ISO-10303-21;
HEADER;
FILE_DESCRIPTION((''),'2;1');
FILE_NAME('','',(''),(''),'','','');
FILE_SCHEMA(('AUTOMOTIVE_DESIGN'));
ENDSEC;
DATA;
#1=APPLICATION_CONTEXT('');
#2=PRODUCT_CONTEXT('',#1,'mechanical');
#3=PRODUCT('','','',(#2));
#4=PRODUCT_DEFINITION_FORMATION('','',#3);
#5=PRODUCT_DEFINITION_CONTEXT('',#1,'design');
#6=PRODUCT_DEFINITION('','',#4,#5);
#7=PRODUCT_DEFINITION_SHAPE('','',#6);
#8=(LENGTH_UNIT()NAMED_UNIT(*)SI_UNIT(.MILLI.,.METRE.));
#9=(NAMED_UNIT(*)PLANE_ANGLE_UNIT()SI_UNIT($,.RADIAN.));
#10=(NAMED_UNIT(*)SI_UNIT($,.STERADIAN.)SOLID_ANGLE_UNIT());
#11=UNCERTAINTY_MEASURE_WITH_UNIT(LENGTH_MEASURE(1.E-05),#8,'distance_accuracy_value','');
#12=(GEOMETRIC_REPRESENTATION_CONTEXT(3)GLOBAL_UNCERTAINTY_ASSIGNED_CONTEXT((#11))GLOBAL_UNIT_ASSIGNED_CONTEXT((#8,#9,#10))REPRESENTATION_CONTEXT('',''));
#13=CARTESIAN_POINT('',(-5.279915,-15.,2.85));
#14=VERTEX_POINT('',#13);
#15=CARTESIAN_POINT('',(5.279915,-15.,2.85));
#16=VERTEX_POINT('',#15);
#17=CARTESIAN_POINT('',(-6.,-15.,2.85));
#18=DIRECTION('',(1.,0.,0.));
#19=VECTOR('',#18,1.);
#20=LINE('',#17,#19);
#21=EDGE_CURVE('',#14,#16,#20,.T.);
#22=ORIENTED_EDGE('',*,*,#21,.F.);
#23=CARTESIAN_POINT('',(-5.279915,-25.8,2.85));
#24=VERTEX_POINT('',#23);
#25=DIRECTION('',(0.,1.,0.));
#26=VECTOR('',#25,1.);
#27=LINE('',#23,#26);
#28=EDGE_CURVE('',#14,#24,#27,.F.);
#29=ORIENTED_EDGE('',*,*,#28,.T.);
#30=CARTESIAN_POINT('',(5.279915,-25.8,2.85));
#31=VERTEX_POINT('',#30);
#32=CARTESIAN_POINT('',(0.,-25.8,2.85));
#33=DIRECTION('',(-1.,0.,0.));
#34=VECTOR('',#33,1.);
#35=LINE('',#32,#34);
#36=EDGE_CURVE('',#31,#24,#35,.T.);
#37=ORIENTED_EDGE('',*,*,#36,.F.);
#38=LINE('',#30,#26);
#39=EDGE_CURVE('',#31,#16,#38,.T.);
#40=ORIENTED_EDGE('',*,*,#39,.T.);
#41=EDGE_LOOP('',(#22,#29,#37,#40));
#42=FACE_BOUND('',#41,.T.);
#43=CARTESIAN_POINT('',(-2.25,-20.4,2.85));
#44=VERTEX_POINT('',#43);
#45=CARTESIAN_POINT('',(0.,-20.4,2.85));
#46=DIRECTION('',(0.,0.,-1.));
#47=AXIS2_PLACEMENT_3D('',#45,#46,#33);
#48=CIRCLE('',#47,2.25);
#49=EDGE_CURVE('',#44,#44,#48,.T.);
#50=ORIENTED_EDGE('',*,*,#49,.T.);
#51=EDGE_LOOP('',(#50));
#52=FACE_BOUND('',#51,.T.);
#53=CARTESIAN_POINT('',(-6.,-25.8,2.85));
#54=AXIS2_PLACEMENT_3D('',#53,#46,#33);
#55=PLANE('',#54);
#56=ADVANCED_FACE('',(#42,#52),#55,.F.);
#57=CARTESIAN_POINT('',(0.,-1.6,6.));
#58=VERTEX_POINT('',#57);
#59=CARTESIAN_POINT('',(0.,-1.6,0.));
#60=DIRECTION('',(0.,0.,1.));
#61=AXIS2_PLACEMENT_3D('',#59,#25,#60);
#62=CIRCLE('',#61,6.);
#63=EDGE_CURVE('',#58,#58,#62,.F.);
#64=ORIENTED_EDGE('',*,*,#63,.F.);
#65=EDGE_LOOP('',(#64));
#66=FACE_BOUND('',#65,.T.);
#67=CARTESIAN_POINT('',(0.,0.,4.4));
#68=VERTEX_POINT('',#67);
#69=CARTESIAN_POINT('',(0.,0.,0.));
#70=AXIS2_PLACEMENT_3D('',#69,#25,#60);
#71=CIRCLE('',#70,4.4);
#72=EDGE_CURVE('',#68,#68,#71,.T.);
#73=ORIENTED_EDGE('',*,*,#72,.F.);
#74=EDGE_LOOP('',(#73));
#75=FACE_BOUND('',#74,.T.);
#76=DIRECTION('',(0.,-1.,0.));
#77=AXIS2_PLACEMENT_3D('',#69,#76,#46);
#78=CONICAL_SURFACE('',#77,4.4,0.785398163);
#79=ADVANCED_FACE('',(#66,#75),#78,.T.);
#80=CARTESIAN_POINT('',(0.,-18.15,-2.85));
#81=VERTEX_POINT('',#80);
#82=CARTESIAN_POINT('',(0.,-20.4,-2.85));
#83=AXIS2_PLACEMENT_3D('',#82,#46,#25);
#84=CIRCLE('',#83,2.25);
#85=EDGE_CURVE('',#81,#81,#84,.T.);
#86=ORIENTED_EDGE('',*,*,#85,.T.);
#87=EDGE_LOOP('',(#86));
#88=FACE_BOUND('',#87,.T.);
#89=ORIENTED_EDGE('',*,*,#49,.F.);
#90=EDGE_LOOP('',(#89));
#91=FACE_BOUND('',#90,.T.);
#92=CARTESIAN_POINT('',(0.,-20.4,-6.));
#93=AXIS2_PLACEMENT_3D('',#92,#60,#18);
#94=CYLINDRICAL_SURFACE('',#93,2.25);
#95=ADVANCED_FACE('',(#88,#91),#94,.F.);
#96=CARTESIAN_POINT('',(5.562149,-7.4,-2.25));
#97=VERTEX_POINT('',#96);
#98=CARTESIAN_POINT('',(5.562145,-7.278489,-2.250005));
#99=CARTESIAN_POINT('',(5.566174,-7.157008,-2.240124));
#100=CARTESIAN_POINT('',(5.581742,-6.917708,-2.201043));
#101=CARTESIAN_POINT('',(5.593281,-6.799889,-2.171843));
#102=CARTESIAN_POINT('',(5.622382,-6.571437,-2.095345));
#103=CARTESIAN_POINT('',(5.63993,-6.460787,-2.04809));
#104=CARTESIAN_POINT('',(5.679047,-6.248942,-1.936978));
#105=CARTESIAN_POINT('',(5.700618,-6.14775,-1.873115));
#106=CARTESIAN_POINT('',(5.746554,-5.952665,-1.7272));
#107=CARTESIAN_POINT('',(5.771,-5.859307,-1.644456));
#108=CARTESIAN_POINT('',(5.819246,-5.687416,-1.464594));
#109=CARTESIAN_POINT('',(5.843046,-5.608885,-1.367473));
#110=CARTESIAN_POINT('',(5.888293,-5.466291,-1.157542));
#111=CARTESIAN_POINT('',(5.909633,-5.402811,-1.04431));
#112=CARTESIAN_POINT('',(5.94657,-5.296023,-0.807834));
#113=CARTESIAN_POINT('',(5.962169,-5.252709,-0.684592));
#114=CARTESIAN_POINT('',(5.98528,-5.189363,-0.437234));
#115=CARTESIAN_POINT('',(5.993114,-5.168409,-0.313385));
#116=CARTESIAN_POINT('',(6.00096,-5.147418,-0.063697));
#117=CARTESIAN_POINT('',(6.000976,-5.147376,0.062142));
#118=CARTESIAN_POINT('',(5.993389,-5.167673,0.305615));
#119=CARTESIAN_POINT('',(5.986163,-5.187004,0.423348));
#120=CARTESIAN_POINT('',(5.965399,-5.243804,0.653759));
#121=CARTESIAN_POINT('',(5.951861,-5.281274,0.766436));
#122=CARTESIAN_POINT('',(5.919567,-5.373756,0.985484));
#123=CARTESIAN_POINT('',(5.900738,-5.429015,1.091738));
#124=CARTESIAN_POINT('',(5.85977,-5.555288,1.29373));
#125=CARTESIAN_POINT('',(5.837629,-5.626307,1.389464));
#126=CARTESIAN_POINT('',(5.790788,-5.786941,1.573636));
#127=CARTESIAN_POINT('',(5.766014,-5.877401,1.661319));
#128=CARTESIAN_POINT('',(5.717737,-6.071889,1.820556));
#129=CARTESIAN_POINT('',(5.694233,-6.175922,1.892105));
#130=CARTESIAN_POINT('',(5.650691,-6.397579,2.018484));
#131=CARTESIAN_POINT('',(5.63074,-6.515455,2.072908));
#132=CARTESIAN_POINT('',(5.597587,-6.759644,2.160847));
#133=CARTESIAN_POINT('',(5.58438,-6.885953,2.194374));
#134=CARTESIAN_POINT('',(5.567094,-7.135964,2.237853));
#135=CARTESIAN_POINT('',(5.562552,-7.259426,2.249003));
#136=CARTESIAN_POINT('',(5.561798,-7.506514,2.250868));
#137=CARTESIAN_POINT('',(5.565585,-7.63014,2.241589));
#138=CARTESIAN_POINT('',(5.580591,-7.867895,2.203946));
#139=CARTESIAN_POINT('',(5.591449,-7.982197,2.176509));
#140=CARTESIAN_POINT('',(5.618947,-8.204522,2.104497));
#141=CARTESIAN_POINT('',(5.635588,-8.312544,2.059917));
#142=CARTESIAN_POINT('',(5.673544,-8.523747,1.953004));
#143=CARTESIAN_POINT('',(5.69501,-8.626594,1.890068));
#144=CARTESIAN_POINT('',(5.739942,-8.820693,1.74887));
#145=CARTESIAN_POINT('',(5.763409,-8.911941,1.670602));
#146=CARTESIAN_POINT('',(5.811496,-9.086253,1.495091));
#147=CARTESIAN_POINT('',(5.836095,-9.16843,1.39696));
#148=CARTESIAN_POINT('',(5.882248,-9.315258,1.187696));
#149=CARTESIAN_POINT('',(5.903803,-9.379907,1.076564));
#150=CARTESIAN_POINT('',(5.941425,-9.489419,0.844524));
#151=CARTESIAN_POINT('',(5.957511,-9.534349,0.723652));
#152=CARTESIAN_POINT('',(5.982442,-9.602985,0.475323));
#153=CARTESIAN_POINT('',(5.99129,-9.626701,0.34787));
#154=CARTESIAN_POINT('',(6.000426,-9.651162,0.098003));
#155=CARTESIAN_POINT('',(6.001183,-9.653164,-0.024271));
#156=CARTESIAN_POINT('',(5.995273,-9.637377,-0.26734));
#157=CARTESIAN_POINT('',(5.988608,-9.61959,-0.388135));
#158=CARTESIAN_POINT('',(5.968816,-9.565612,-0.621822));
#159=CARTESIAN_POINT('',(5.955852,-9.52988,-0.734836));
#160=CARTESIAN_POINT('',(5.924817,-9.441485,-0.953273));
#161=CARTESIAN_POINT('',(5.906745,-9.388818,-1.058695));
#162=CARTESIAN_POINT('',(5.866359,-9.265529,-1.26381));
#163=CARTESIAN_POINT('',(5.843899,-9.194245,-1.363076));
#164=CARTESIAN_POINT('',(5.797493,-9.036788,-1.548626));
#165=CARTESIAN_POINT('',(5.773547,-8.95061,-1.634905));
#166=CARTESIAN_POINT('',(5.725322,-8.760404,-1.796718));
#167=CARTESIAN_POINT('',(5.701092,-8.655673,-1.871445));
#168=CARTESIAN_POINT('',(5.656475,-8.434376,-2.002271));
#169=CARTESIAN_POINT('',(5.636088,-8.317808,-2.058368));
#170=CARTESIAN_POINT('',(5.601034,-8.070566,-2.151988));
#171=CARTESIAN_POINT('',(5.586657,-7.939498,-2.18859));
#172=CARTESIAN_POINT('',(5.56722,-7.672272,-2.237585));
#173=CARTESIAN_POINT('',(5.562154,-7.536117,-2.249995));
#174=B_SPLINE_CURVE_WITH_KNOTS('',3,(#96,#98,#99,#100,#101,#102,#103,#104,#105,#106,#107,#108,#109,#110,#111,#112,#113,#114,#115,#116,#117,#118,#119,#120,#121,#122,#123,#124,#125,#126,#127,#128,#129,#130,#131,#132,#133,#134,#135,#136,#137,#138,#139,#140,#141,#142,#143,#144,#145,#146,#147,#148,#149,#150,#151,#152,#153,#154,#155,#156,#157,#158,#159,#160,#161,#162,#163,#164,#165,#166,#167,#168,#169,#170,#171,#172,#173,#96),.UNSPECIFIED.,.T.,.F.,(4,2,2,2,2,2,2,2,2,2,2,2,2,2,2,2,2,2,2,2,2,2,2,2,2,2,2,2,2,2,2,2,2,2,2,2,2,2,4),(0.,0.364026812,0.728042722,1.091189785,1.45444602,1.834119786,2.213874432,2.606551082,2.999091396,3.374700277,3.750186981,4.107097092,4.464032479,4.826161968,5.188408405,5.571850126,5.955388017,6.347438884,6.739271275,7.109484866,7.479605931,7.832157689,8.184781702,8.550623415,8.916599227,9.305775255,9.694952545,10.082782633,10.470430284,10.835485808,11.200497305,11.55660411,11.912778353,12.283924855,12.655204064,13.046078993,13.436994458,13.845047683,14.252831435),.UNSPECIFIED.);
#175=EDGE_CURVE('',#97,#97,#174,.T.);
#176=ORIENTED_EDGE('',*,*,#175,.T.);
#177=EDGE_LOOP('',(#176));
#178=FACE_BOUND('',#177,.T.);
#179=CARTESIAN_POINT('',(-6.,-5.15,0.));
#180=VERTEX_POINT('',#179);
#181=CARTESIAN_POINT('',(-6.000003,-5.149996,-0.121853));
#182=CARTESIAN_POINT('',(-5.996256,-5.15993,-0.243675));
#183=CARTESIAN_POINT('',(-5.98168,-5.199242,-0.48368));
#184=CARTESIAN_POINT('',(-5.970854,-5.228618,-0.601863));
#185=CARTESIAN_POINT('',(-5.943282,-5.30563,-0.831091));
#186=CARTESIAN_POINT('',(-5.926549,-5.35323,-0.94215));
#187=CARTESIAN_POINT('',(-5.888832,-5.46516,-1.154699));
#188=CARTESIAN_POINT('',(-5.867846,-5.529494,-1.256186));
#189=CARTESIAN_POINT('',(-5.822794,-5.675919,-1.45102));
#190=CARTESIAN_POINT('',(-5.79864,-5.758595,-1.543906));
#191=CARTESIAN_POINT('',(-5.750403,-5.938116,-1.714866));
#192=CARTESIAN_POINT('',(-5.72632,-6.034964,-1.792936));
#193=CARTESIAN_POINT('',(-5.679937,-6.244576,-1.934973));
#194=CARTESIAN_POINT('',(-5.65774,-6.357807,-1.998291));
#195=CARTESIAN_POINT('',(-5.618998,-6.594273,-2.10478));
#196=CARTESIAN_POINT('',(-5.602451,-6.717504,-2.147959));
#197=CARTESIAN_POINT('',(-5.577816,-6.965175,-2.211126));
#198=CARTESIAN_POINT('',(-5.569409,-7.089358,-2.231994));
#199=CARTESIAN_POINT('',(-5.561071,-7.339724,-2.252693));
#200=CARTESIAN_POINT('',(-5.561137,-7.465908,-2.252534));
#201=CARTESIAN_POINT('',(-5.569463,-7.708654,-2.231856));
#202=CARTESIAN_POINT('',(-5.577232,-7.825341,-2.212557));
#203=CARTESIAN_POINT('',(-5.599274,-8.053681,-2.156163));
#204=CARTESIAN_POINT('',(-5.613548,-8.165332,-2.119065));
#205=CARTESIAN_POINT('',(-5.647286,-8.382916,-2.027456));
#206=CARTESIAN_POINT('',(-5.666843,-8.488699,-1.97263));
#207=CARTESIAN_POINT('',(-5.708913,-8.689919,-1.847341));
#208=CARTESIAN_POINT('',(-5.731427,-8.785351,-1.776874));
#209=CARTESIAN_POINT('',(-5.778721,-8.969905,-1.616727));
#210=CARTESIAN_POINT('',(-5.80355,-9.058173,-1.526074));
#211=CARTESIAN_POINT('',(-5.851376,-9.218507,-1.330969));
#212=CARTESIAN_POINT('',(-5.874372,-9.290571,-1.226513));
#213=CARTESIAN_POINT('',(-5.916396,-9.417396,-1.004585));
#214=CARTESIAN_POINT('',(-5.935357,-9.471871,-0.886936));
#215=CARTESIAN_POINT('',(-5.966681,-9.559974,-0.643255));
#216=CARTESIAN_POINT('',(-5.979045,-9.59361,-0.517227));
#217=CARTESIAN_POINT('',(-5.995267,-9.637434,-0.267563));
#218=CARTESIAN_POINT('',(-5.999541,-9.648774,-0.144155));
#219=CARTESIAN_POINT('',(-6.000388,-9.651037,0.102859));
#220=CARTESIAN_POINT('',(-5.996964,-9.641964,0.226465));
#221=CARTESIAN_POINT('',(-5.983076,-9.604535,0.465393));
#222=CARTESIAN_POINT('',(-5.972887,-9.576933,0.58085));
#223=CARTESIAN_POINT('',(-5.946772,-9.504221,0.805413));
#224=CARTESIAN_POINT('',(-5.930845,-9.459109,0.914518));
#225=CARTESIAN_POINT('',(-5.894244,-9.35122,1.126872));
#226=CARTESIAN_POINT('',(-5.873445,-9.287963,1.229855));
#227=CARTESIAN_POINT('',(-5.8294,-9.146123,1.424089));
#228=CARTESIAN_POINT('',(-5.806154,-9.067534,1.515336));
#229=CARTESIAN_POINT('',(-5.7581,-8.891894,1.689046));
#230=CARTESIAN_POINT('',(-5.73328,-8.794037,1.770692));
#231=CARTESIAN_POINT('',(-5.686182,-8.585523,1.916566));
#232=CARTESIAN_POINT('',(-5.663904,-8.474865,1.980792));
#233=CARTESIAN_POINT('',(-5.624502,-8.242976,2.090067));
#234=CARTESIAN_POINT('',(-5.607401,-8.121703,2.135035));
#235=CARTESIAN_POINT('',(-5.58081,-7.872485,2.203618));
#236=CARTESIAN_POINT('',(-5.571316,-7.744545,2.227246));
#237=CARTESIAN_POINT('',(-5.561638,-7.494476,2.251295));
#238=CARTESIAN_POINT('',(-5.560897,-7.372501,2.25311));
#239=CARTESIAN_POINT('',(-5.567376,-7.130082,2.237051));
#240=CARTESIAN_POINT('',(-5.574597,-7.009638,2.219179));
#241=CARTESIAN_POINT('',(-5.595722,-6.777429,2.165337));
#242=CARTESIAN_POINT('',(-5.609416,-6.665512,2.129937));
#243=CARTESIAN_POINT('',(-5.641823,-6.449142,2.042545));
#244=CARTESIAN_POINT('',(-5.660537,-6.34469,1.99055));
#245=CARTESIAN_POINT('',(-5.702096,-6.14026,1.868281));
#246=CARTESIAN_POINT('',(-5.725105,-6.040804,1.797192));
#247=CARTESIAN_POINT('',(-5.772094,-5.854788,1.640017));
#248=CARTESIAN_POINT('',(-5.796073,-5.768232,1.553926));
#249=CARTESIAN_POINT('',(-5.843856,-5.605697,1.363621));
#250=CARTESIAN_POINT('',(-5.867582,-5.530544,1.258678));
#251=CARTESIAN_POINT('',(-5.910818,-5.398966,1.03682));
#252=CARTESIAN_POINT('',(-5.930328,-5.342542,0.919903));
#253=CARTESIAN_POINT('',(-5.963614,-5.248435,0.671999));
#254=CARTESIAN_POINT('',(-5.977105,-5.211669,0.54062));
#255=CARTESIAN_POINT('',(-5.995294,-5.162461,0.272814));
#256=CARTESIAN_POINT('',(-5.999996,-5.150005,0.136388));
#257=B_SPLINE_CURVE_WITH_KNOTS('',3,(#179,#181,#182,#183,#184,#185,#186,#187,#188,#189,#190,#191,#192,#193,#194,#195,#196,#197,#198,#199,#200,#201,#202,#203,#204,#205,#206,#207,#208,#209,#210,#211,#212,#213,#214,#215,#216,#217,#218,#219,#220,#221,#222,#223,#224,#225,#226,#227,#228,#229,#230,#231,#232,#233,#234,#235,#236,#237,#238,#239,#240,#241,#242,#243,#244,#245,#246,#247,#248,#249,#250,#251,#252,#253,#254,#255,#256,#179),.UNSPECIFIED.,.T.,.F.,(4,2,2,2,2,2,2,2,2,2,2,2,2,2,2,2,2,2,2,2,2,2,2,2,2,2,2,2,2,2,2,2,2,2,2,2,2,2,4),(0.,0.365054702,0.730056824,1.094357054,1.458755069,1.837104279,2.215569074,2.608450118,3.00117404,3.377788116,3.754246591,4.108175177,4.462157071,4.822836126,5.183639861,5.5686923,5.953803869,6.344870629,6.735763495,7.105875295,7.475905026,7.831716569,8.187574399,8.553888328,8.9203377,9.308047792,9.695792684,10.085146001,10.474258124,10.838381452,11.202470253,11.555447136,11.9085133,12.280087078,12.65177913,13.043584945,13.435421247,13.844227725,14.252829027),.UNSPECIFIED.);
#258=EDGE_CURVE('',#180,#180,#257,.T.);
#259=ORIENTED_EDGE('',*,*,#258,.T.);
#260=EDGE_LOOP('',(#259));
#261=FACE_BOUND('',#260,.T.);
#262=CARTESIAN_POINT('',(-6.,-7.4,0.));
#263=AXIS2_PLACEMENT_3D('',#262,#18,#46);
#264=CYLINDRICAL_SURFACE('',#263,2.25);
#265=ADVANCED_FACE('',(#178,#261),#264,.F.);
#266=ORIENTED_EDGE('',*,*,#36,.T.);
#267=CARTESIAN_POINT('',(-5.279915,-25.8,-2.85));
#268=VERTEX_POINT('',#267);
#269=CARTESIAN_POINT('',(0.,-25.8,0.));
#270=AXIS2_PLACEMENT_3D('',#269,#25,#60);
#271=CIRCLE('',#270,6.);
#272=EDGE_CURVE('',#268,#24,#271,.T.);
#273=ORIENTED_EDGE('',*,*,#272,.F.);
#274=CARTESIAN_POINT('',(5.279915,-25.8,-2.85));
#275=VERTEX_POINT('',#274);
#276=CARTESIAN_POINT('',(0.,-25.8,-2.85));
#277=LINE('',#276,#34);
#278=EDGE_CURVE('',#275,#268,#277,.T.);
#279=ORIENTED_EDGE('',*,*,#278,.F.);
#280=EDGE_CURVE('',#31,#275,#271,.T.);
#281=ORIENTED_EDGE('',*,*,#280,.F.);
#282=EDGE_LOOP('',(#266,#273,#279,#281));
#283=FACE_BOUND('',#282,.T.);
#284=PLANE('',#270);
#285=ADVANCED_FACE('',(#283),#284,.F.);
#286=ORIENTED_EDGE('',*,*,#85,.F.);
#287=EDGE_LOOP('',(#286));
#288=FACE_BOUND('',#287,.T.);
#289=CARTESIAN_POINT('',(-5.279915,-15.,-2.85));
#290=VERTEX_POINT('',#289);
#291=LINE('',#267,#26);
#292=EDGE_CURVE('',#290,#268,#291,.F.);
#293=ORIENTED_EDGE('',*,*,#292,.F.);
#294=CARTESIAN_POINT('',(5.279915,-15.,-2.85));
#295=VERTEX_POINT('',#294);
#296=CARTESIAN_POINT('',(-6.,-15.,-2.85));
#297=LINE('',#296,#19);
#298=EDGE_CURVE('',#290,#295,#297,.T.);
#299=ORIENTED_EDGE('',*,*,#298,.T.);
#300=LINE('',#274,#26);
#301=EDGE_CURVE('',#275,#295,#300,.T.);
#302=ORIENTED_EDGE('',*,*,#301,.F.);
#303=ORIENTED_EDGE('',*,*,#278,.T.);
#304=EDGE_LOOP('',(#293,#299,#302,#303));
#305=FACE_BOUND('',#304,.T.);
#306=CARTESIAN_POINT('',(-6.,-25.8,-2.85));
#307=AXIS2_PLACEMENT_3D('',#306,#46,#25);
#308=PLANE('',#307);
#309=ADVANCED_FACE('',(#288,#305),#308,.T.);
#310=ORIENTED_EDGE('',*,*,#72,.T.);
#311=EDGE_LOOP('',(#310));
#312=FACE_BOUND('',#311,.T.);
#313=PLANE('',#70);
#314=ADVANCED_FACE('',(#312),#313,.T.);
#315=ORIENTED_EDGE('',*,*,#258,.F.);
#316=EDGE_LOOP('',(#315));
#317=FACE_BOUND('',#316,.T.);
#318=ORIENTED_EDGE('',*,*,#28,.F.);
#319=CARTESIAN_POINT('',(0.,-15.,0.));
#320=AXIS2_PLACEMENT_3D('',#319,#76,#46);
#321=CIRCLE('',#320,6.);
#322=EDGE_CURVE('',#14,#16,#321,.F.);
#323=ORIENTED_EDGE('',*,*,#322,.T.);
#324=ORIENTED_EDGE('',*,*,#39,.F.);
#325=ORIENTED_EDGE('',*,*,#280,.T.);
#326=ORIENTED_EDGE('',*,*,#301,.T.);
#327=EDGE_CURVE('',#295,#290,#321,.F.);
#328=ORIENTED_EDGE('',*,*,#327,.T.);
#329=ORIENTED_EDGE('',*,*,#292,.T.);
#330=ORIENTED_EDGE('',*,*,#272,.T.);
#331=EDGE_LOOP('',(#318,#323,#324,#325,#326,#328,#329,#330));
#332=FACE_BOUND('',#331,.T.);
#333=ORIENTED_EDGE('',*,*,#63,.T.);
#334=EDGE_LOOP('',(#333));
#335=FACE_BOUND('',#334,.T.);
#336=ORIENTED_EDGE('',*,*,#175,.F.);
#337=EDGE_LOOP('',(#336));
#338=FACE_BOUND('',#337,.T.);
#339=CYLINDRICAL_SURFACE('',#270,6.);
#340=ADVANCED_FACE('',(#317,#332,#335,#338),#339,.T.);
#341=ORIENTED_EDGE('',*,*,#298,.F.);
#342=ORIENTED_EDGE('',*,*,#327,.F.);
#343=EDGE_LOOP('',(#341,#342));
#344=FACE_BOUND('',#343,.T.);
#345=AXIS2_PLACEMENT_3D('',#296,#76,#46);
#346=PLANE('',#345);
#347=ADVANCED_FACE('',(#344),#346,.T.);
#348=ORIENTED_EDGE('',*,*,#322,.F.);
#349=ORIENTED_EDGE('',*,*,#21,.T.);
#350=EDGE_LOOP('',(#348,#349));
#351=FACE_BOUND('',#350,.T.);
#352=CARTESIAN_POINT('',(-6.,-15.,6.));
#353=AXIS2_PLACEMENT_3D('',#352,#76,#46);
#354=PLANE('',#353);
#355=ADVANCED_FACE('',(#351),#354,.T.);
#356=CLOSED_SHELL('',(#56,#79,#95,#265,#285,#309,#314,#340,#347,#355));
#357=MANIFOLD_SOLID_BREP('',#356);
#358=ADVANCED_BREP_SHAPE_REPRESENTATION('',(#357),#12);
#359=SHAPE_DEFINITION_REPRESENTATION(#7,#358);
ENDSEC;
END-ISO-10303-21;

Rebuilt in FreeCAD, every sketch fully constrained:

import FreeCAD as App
import Part
import Sketcher
from FreeCAD import Vector
Q = App.Units.Quantity


def edges_at(feature, points):
    """Names of the edges that pass closest to the given points."""
    edges = feature.Shape.Edges
    near = lambda p: min(range(len(edges)), key=lambda i: edges[i].distToShape(Part.Vertex(*p))[0])
    return sorted({f"Edge{near(p) + 1}" for p in points})

doc = App.newDocument("Part")
body = doc.addObject("PartDesign::Body", "Body")

# Sketch on XZ plane
sketch1 = doc.addObject("Sketcher::SketchObject", "Sketch")
body.addObject(sketch1)
sketch1.AttachmentSupport = (doc.XZ_Plane, [""])
sketch1.MapMode = "FlatFace"
sketch1.addGeometry(Part.Circle(Vector(0, 0, 0), Vector(0, 0, 1), 6), False)
sketch1.addConstraint([
    Sketcher.Constraint("Coincident", 0, 3, -1, 1),
    Sketcher.Constraint("Diameter", 0, Q("12 mm")),
])
pad1 = doc.addObject("PartDesign::Pad", "Pad")
body.addObject(pad1)
pad1.Profile = sketch1
pad1.Length = 25.8
doc.recompute()

chamfer = doc.addObject("PartDesign::Chamfer", "Chamfer")
body.addObject(chamfer)
chamfer.Base = (pad1, edges_at(pad1, [(-6, 0, 0)]))
chamfer.Size = 1.6

# Sketch on YZ plane
sketch2 = doc.addObject("Sketcher::SketchObject", "Sketch001")
body.addObject(sketch2)
sketch2.AttachmentSupport = (doc.YZ_Plane, [""])
sketch2.MapMode = "FlatFace"
sketch2.addGeometry([
    Part.LineSegment(Vector(-15, -2.9, 0), Vector(-25.8, -2.9, 0)),  # 0
    Part.LineSegment(Vector(-25.8, -2.9, 0), Vector(-25.8, -6, 0)),  # 1
    Part.LineSegment(Vector(-25.8, -6, 0), Vector(-15, -6, 0)),  # 2
    Part.LineSegment(Vector(-15, -6, 0), Vector(-15, -2.9, 0)),  # 3
    Part.LineSegment(Vector(-15, 6, 0), Vector(-25.8, 6, 0)),  # 4
    Part.LineSegment(Vector(-25.8, 6, 0), Vector(-25.8, 2.9, 0)),  # 5
    Part.LineSegment(Vector(-25.8, 2.9, 0), Vector(-15, 2.9, 0)),  # 6
    Part.LineSegment(Vector(-15, 2.9, 0), Vector(-15, 6, 0)),  # 7
], False)
sketch2.addConstraint([
    Sketcher.Constraint("Coincident", 0, 2, 1, 1),
    Sketcher.Constraint("Coincident", 1, 2, 2, 1),
    Sketcher.Constraint("Coincident", 2, 2, 3, 1),
    Sketcher.Constraint("Coincident", 3, 2, 0, 1),
    Sketcher.Constraint("Coincident", 4, 2, 5, 1),
    Sketcher.Constraint("Coincident", 5, 2, 6, 1),
    Sketcher.Constraint("Coincident", 6, 2, 7, 1),
    Sketcher.Constraint("Coincident", 7, 2, 4, 1),
    Sketcher.Constraint("Horizontal", 0),
    Sketcher.Constraint("Vertical", 1),
    Sketcher.Constraint("Horizontal", 2),
    Sketcher.Constraint("Vertical", 3),
    Sketcher.Constraint("Horizontal", 4),
    Sketcher.Constraint("Vertical", 5),
    Sketcher.Constraint("Horizontal", 6),
    Sketcher.Constraint("Vertical", 7),
    Sketcher.Constraint("Symmetric", 1, 2, 4, 2, -1),
    Sketcher.Constraint("Symmetric", 3, 2, 6, 2, -1),
    Sketcher.Constraint("DistanceX", 0, 2, 0, 1, Q("10.8 mm")),
    Sketcher.Constraint("DistanceY", 1, 2, -1, 1, Q("6 mm")),
    Sketcher.Constraint("DistanceX", 2, 2, -1, 1, Q("15 mm")),
    Sketcher.Constraint("DistanceY", 1, 2, 1, 1, Q("3.15 mm")),
])
pocket1 = doc.addObject("PartDesign::Pocket", "Pocket")
body.addObject(pocket1)
pocket1.Profile = sketch2
pocket1.Type = "ThroughAll"
pocket1.Midplane = True

# Sketch on XY plane
sketch3 = doc.addObject("Sketcher::SketchObject", "Sketch002")
body.addObject(sketch3)
sketch3.AttachmentSupport = (doc.XY_Plane, [""])
sketch3.MapMode = "FlatFace"
sketch3.AttachmentOffset = App.Placement(Vector(0, 0, 2.85), App.Rotation())
sketch3.addGeometry(Part.Circle(Vector(0, -20.4, 0), Vector(0, 0, 1), 2.2), False)
sketch3.addConstraint([
    Sketcher.Constraint("PointOnObject", 0, 3, -2),
    Sketcher.Constraint("Diameter", 0, Q("4.5 mm")),
    Sketcher.Constraint("DistanceY", 0, 3, -1, 1, Q("20.4 mm")),
])
pocket2 = doc.addObject("PartDesign::Pocket", "Pocket001")
body.addObject(pocket2)
pocket2.Profile = sketch3
pocket2.Type = "ThroughAll"
pocket2.Midplane = True

# Sketch on YZ plane
sketch4 = doc.addObject("Sketcher::SketchObject", "Sketch003")
body.addObject(sketch4)
sketch4.AttachmentSupport = (doc.YZ_Plane, [""])
sketch4.MapMode = "FlatFace"
sketch4.addGeometry(Part.Circle(Vector(-7.4, 0, 0), Vector(0, 0, 1), 2.2), False)
sketch4.addConstraint([
    Sketcher.Constraint("PointOnObject", 0, 3, -1),
    Sketcher.Constraint("Diameter", 0, Q("4.5 mm")),
    Sketcher.Constraint("DistanceX", 0, 3, -1, 1, Q("7.4 mm")),
])
pocket3 = doc.addObject("PartDesign::Pocket", "Pocket002")
body.addObject(pocket3)
pocket3.Profile = sketch4
pocket3.Type = "ThroughAll"
pocket3.Midplane = True

doc.recompute()
